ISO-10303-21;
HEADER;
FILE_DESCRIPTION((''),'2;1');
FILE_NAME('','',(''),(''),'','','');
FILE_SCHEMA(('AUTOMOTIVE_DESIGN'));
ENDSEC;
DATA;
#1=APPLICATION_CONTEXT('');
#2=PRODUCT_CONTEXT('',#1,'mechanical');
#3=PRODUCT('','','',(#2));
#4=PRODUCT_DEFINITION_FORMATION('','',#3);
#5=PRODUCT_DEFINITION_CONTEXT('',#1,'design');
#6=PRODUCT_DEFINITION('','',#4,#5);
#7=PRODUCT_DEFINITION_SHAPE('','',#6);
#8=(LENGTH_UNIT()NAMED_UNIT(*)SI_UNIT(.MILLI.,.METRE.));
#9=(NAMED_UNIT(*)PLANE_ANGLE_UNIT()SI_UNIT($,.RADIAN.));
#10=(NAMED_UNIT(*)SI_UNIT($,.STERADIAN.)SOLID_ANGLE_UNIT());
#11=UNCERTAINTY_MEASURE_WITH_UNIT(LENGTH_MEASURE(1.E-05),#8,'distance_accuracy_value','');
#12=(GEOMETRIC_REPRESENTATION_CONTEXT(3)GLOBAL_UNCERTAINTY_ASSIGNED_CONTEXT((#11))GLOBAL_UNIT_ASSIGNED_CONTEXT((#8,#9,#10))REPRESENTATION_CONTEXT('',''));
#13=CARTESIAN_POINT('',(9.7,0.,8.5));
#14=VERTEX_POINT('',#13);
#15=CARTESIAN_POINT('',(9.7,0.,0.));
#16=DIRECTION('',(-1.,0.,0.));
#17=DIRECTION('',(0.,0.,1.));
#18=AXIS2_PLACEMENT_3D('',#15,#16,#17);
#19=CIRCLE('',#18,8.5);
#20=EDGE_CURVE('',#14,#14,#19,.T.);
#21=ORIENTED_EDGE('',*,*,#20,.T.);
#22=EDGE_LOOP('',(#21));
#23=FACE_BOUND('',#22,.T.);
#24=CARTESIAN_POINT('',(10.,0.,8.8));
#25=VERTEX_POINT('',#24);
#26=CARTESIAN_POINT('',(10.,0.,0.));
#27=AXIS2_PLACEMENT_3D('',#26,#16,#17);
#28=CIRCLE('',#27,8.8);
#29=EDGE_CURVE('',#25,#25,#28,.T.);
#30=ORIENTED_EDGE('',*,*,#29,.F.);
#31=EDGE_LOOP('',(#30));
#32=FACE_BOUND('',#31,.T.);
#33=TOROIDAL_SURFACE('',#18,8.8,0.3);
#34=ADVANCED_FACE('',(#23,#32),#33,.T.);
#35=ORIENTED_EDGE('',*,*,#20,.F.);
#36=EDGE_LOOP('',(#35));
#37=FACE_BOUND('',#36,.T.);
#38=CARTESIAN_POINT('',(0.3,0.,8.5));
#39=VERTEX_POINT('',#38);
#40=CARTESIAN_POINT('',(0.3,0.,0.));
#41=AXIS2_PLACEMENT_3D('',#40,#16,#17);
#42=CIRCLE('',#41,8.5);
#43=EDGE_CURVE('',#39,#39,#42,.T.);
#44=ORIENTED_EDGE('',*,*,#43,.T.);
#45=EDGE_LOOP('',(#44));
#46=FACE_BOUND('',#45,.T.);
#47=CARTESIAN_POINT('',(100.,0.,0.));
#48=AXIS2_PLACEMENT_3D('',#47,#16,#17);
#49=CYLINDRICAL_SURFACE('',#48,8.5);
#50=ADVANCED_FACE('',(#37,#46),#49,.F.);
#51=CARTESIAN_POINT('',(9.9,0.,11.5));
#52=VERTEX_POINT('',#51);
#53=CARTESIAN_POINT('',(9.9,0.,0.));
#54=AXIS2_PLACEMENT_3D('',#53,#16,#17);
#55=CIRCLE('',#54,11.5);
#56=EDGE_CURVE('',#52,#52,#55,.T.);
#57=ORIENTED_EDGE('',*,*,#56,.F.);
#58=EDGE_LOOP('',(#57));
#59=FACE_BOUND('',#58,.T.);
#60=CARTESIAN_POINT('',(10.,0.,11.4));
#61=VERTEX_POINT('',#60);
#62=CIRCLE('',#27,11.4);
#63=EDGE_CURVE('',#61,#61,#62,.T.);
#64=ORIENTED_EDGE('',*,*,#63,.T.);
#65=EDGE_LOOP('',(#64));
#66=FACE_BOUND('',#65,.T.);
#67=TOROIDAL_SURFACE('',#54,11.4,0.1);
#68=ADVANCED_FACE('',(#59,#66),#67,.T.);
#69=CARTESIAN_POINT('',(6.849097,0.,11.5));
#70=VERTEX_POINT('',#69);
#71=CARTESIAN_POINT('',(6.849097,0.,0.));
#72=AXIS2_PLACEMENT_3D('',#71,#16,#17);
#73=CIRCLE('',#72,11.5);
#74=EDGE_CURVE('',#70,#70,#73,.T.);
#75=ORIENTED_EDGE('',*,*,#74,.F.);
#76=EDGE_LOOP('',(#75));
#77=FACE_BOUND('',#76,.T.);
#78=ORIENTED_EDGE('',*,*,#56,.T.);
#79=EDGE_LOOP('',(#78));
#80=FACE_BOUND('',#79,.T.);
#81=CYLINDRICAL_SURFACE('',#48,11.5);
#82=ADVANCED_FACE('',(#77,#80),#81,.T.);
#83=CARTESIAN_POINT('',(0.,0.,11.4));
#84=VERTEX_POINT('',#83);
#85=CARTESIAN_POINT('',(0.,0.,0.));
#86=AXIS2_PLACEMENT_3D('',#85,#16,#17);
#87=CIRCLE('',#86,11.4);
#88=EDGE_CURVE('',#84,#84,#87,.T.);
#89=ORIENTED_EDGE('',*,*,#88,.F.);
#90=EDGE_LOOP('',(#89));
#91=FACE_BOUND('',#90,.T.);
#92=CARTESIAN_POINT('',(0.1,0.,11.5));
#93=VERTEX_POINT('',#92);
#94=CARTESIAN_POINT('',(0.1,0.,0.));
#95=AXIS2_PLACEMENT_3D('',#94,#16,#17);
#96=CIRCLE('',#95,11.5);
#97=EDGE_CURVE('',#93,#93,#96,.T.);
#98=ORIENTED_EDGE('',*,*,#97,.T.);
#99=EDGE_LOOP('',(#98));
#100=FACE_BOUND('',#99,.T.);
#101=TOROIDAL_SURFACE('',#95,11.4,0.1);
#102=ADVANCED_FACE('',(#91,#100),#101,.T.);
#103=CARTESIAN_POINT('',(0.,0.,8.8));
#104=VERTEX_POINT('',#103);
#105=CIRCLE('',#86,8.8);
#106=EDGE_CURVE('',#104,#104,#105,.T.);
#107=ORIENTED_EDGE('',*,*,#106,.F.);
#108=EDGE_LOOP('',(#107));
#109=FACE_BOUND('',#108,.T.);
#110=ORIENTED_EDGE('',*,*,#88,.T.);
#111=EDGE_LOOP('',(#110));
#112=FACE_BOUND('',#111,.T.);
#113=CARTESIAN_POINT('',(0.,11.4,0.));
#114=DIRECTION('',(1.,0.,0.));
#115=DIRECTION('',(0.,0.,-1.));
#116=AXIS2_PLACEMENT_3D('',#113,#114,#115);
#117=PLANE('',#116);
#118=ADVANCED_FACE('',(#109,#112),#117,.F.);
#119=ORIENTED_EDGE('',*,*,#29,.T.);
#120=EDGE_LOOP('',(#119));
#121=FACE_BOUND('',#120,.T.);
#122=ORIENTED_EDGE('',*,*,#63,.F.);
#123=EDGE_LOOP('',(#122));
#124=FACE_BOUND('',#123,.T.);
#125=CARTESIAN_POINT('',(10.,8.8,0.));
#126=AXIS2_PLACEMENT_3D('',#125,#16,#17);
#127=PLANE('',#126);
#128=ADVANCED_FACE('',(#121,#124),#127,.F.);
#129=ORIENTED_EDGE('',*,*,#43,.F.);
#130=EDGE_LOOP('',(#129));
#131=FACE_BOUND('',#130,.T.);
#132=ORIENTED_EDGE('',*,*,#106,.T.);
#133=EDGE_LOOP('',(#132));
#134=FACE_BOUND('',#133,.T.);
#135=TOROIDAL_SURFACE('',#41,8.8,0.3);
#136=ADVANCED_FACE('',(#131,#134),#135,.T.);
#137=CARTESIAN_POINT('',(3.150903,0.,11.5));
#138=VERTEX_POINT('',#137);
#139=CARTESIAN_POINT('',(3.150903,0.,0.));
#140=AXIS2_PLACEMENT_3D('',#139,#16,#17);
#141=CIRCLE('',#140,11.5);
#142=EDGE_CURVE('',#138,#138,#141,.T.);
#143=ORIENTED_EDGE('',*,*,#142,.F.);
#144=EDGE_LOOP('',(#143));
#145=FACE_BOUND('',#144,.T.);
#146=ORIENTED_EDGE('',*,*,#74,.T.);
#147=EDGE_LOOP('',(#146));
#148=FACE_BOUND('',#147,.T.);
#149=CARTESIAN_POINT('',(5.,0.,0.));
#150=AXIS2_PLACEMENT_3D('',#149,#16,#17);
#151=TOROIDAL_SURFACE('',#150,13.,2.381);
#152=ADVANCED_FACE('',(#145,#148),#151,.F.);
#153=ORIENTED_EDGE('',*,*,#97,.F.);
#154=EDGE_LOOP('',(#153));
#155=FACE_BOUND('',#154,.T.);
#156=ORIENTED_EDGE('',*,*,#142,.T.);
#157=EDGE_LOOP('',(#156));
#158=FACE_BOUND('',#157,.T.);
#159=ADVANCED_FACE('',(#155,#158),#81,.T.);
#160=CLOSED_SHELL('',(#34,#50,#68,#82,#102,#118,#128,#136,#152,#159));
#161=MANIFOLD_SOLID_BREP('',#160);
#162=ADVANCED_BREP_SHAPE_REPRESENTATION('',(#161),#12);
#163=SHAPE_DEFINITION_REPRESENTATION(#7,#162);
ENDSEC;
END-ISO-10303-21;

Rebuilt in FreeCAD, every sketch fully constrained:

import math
import FreeCAD as App
import Part
import Sketcher

V = App.Vector

doc = App.newDocument("Part")
params = doc.addObject("Spreadsheet::Sheet", "Params")
for row, (alias, value) in enumerate([
    ("sketch1_radius", "0.3 mm"),
    ("sketch1_radius2", "0.1 mm"),
    ("sketch1_width", "9.4 mm"),
    ("sketch1_height", "2.6 mm"),
    ("revolution_angle", "360 deg"),
], start=1):
    params.set(f"A{row}", alias)
    params.set(f"B{row}", "=" + value)
    params.setAlias(f"B{row}", alias)

body = doc.addObject("PartDesign::Body", "Body")

# Sketch on XY plane
sketch1 = body.newObject("Sketcher::SketchObject", "Sketch")
sketch1.AttachmentSupport = (doc.getObject("XY_Plane"), [""])
sketch1.MapMode = "FlatFace"
sketch1.addGeometry([
    Part.LineSegment(V(0.3, 8.5, 0), V(9.7, 8.5, 0)),  # 0
    Part.ArcOfCircle(Part.Circle(V(9.7, 8.8, 0), V(0, 0, 1), 0.3), math.radians(-90), math.radians(0)),  # 1
    Part.LineSegment(V(10, 8.8, 0), V(10, 11.4, 0)),  # 2
    Part.ArcOfCircle(Part.Circle(V(9.9, 11.4, 0), V(0, 0, 1), 0.1), math.radians(0), math.radians(90)),  # 3
    Part.LineSegment(V(9.9, 11.5, 0), V(6.849097, 11.5, 0)),  # 4
    Part.ArcOfCircle(Part.Circle(V(5, 13, 0), V(0, 0, 1), 2.381), math.radians(-140.950807), math.radians(-39.049193)),  # 5
    Part.LineSegment(V(3.150903, 11.5, 0), V(0.1, 11.5, 0)),  # 6
    Part.ArcOfCircle(Part.Circle(V(0.1, 11.4, 0), V(0, 0, 1), 0.1), math.radians(90), math.radians(180)),  # 7
    Part.LineSegment(V(0, 11.4, 0), V(0, 8.8, 0)),  # 8
    Part.ArcOfCircle(Part.Circle(V(0.3, 8.8, 0), V(0, 0, 1), 0.3), math.radians(-180), math.radians(-90)),  # 9
], False)
sketch1.addConstraint([
    Sketcher.Constraint("Tangent", 0, 2, 1, 1),
    Sketcher.Constraint("Tangent", 1, 2, 2, 1),
    Sketcher.Constraint("Tangent", 2, 2, 3, 1),
    Sketcher.Constraint("Tangent", 3, 2, 4, 1),
    Sketcher.Constraint("Coincident", 4, 2, 5, 2),
    Sketcher.Constraint("Coincident", 5, 1, 6, 1),
    Sketcher.Constraint("Tangent", 6, 2, 7, 1),
    Sketcher.Constraint("Tangent", 7, 2, 8, 1),
    Sketcher.Constraint("Tangent", 8, 2, 9, 1),
    Sketcher.Constraint("Tangent", 9, 2, 0, 1),
    Sketcher.Constraint("Horizontal", 0),
    Sketcher.Constraint("Vertical", 2),
    Sketcher.Constraint("Horizontal", 4),
    Sketcher.Constraint("Horizontal", 6),
    Sketcher.Constraint("Vertical", 8),
    Sketcher.Constraint("Equal", 3, 7),
    Sketcher.Constraint("Equal", 1, 9),
    Sketcher.Constraint("PointOnObject", 7, 2, -2),
    Sketcher.Constraint("Horizontal", 3, 3, 7, 3),
    Sketcher.Constraint("Equal", 4, 6),
    Sketcher.Constraint("Radius", 1, 0.3),
    Sketcher.Constraint("Radius", 3, 0.1),
    Sketcher.Constraint("DistanceX", 0, 1, 0, 2, 9.4),
    Sketcher.Constraint("DistanceY", 2, 1, 2, 2, 2.6),
    Sketcher.Constraint("DistanceY", -1, 1, 5, 3, 13.0),
    Sketcher.Constraint("Radius", 5, 2.381),
    Sketcher.Constraint("DistanceY", -1, 1, 1, 3, 8.8),
])
sketch1.setExpression("Constraints[20]", "Params.sketch1_radius")
sketch1.setExpression("Constraints[21]", "Params.sketch1_radius2")
sketch1.setExpression("Constraints[22]", "Params.sketch1_width")
sketch1.setExpression("Constraints[23]", "Params.sketch1_height")
revolution = body.newObject("PartDesign::Revolution", "Revolution")
revolution.Profile = sketch1
revolution.ReferenceAxis = (sketch1, ["H_Axis"])
revolution.setExpression("Angle", "Params.revolution_angle")

doc.recompute()
